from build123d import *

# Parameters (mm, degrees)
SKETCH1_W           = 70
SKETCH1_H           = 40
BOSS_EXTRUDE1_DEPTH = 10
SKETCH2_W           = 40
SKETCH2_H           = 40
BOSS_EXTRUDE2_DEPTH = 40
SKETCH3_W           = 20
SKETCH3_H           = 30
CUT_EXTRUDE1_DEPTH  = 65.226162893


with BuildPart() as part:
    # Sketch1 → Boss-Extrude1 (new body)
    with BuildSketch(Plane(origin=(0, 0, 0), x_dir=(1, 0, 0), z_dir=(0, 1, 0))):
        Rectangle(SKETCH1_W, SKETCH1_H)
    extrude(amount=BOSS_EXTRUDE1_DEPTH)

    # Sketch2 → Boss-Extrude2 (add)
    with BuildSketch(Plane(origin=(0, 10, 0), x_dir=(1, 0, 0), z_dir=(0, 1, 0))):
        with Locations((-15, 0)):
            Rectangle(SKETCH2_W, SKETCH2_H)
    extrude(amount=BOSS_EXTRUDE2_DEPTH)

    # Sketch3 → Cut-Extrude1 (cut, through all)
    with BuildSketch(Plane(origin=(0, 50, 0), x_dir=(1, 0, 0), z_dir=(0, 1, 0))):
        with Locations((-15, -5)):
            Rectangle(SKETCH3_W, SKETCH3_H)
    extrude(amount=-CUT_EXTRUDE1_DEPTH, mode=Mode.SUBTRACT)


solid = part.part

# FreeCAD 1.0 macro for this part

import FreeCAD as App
import Part
import Sketcher
Q = App.Units.Quantity


def add_polygon(sketch, points):
    """Adds a closed chain of lines whose ends are joined by coincident constraints."""
    first, n = sketch.GeometryCount, len(points)
    for a, b in zip(points, points[1:] + points[:1]):
        sketch.addGeometry(Part.LineSegment(App.Vector(*a, 0), App.Vector(*b, 0)), False)
    for i in range(n):
        sketch.addConstraint(Sketcher.Constraint("Coincident", first + i, 2, first + (i + 1) % n, 1))

doc = App.newDocument("Part")
body = doc.addObject("PartDesign::Body", "Body")

sketch1 = body.newObject("Sketcher::SketchObject", "Sketch")
sketch1.AttachmentSupport = (doc.getObject("XZ_Plane"), [""])
sketch1.MapMode = "FlatFace"
add_polygon(sketch1, [(-35, -20), (-35, 20), (35, 20), (35, -20)])
sketch1.addConstraint(Sketcher.Constraint("Vertical", 0))
sketch1.addConstraint(Sketcher.Constraint("Horizontal", 1))
sketch1.addConstraint(Sketcher.Constraint("Vertical", 2))
sketch1.addConstraint(Sketcher.Constraint("Horizontal", 3))
sketch1.addConstraint(Sketcher.Constraint("Symmetric", 0, 2, 2, 2, -1, 1))
sketch1.addConstraint(Sketcher.Constraint("DistanceX", 1, 1, 1, 2, Q("70 mm")))
sketch1.addConstraint(Sketcher.Constraint("DistanceY", 0, 1, 0, 2, Q("40 mm")))
pad1 = body.newObject("PartDesign::Pad", "Pad")
pad1.Profile = sketch1
pad1.Length = 10
pad1.Reversed = True

sketch2 = body.newObject("Sketcher::SketchObject", "Sketch001")
sketch2.AttachmentSupport = (doc.getObject("XZ_Plane"), [""])
sketch2.MapMode = "FlatFace"
sketch2.AttachmentOffset = App.Placement(App.Vector(0, 0, -10), App.Rotation())
add_polygon(sketch2, [(-35, -20), (-35, 20), (5, 20), (5, -20)])
sketch2.addConstraint(Sketcher.Constraint("Vertical", 0))
sketch2.addConstraint(Sketcher.Constraint("Horizontal", 1))
sketch2.addConstraint(Sketcher.Constraint("Vertical", 2))
sketch2.addConstraint(Sketcher.Constraint("Horizontal", 3))
sketch2.addConstraint(Sketcher.Constraint("Equal", 3, 0))
sketch2.addConstraint(Sketcher.Constraint("DistanceX", 1, 1, 1, 2, Q("40 mm")))
sketch2.addConstraint(Sketcher.Constraint("DistanceX", 0, 2, -1, 1, Q("35 mm")))
sketch2.addConstraint(Sketcher.Constraint("DistanceY", -1, 1, 0, 2, Q("20 mm")))
pad2 = body.newObject("PartDesign::Pad", "Pad001")
pad2.Profile = sketch2
pad2.Length = 40
pad2.Reversed = True

sketch3 = body.newObject("Sketcher::SketchObject", "Sketch002")
sketch3.AttachmentSupport = (doc.getObject("XZ_Plane"), [""])
sketch3.MapMode = "FlatFace"
sketch3.AttachmentOffset = App.Placement(App.Vector(0, 0, -50), App.Rotation())
add_polygon(sketch3, [(-25, -10), (-25, 20), (-5, 20), (-5, -10)])
sketch3.addConstraint(Sketcher.Constraint("Vertical", 0))
sketch3.addConstraint(Sketcher.Constraint("Horizontal", 1))
sketch3.addConstraint(Sketcher.Constraint("Vertical", 2))
sketch3.addConstraint(Sketcher.Constraint("Horizontal", 3))
sketch3.addConstraint(Sketcher.Constraint("DistanceX", 1, 1, 1, 2, Q("20 mm")))
sketch3.addConstraint(Sketcher.Constraint("DistanceY", 0, 1, 0, 2, Q("30 mm")))
sketch3.addConstraint(Sketcher.Constraint("DistanceX", 0, 2, -1, 1, Q("25 mm")))
sketch3.addConstraint(Sketcher.Constraint("DistanceY", -1, 1, 0, 2, Q("20 mm")))
pocket1 = body.newObject("PartDesign::Pocket", "Pocket")
pocket1.Profile = sketch3
pocket1.Type = "ThroughAll"
pocket1.Reversed = True

doc.recompute()
